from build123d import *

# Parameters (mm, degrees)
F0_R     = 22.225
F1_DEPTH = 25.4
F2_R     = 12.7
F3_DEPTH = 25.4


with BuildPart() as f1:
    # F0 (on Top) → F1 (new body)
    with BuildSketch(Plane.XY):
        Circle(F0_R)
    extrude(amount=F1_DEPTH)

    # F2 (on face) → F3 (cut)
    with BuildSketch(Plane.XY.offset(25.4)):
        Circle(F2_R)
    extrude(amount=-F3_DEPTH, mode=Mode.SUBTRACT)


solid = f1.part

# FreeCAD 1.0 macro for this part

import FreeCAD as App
import Part
import Sketcher
from FreeCAD import Vector
Q = App.Units.Quantity

doc = App.newDocument("Part")
body = doc.addObject("PartDesign::Body", "Body")

# Sketch on XY plane
sketch1 = body.newObject("Sketcher::SketchObject", "Sketch")
sketch1.AttachmentSupport = (doc.getObject("XY_Plane"), [""])
sketch1.MapMode = "FlatFace"
sketch1.addGeometry(Part.Circle(Vector(0, 0, 0), Vector(0, 0, 1), 22.225), False)
sketch1.addConstraint(Sketcher.Constraint("Coincident", 0, 3, -1, 1))
sketch1.addConstraint(Sketcher.Constraint("Diameter", 0, Q("1.75 in")))
pad1 = body.newObject("PartDesign::Pad", "Pad")
pad1.Profile = sketch1
pad1.Length = Q("1 in")

# Sketch on XY plane
sketch2 = body.newObject("Sketcher::SketchObject", "Sketch001")
sketch2.AttachmentSupport = (doc.getObject("XY_Plane"), [""])
sketch2.MapMode = "FlatFace"
sketch2.AttachmentOffset = App.Placement(Vector(0, 0, 1 * 25.4), App.Rotation())
sketch2.addGeometry(Part.Circle(Vector(0, 0, 0), Vector(0, 0, 1), 12.7), False)
sketch2.addConstraint(Sketcher.Constraint("Coincident", 0, 3, -1, 1))
sketch2.addConstraint(Sketcher.Constraint("Diameter", 0, Q("1 in")))
pocket1 = body.newObject("PartDesign::Pocket", "Pocket")
pocket1.Profile = sketch2
pocket1.Length = Q("1 in")

doc.recompute()
